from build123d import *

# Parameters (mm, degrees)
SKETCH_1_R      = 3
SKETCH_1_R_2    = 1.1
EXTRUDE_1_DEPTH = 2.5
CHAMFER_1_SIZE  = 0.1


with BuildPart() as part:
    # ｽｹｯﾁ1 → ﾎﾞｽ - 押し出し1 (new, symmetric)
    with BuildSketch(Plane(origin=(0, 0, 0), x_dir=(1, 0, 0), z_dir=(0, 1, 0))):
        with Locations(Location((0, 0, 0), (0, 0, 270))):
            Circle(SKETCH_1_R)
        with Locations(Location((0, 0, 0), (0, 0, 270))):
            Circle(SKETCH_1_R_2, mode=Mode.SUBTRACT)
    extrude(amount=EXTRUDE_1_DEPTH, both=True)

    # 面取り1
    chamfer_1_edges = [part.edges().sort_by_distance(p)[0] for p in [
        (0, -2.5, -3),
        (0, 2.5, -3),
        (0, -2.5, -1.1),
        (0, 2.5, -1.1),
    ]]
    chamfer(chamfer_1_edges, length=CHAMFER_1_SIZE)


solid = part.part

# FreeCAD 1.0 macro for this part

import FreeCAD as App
import Part
import Sketcher
Q = App.Units.Quantity


def edges_at(feature, points):
    """Names of the edges that pass closest to the given points."""
    edges = feature.Shape.Edges
    near = lambda p: min(range(len(edges)), key=lambda i: edges[i].distToShape(Part.Vertex(*p))[0])
    return sorted({f"Edge{near(p) + 1}" for p in points})

doc = App.newDocument("Part")
params = doc.addObject("Spreadsheet::Sheet", "Params")
for row, (alias, value) in enumerate([
    ("sketch1_diameter", "6 mm"),
    ("sketch1_diameter2", "2.2 mm"),
    ("pad1_length", "5 mm"),
    ("chamfer_size", "0.1 mm"),
], start=1):
    params.set(f"A{row}", alias)
    params.set(f"B{row}", "=" + value)
    params.setAlias(f"B{row}", alias)

body = doc.addObject("PartDesign::Body", "Body")

# Sketch on XZ plane
sketch1 = doc.addObject("Sketcher::SketchObject", "Sketch")
body.addObject(sketch1)
sketch1.AttachmentSupport = (doc.XZ_Plane, [""])
sketch1.MapMode = "FlatFace"
sketch1.addGeometry([
    Part.Circle(App.Vector(0, 0, 0), App.Vector(0, 0, 1), 3),
    Part.Circle(App.Vector(0, 0, 0), App.Vector(0, 0, 1), 1.1),
], False)
sketch1.addConstraint([
    Sketcher.Constraint("Coincident", 0, 3, -1, 1),
    Sketcher.Constraint("Coincident", 1, 3, -1, 1),
    Sketcher.Constraint("Diameter", 0, Q("6 mm")),
    Sketcher.Constraint("Diameter", 1, Q("2.2 mm")),
])
sketch1.setExpression("Constraints[2]", "Params.sketch1_diameter")
sketch1.setExpression("Constraints[3]", "Params.sketch1_diameter2")
pad1 = doc.addObject("PartDesign::Pad", "Pad")
body.addObject(pad1)
pad1.Profile = sketch1
pad1.setExpression("Length", "Params.pad1_length")
pad1.Midplane = True
doc.recompute()

chamfer = doc.addObject("PartDesign::Chamfer", "Chamfer")
body.addObject(chamfer)
chamfer.Base = (pad1, edges_at(pad1, [
    (0, -2.5, -3),
    (0, 2.5, -3),
    (0, -2.5, -1.1),
    (0, 2.5, -1.1),
]))
chamfer.setExpression("Size", "Params.chamfer_size")

doc.recompute()
